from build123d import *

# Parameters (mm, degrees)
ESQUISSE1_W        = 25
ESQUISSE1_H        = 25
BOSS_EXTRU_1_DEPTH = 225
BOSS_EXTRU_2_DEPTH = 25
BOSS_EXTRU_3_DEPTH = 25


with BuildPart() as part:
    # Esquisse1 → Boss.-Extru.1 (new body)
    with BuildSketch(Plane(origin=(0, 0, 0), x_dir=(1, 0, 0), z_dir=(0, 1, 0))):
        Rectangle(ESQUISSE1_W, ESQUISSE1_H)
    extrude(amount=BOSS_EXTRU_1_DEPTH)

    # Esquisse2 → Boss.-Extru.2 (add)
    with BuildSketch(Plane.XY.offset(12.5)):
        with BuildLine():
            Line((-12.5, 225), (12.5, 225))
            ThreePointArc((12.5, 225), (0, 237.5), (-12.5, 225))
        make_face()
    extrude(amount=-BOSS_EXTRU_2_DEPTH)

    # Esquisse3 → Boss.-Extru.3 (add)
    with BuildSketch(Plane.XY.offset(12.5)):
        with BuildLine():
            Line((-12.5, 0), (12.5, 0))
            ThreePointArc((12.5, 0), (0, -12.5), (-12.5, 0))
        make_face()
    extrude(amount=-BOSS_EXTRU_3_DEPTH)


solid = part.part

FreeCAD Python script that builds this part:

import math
import FreeCAD as App
import Part
import Sketcher

doc = App.newDocument("Part")
body = doc.addObject("PartDesign::Body", "Body")

sketch1 = doc.addObject("Sketcher::SketchObject", "Sketch")
body.addObject(sketch1)
sketch1.AttachmentSupport = (doc.XZ_Plane, [""])
sketch1.MapMode = "FlatFace"
sketch1.addGeometry(Part.LineSegment(App.Vector(-12, -12, 0), App.Vector(-12, 12, 0)), False)
sketch1.addGeometry(Part.LineSegment(App.Vector(-12, 12, 0), App.Vector(12, 12, 0)), False)
sketch1.addGeometry(Part.LineSegment(App.Vector(12, 12, 0), App.Vector(12, -12, 0)), False)
sketch1.addGeometry(Part.LineSegment(App.Vector(12, -12, 0), App.Vector(-12, -12, 0)), False)
sketch1.addConstraint(Sketcher.Constraint("Coincident", 0, 2, 1, 1))
sketch1.addConstraint(Sketcher.Constraint("Coincident", 1, 2, 2, 1))
sketch1.addConstraint(Sketcher.Constraint("Coincident", 2, 2, 3, 1))
sketch1.addConstraint(Sketcher.Constraint("Coincident", 3, 2, 0, 1))
sketch1.addConstraint(Sketcher.Constraint("Vertical", 0))
sketch1.addConstraint(Sketcher.Constraint("Horizontal", 1))
sketch1.addConstraint(Sketcher.Constraint("Vertical", 2))
sketch1.addConstraint(Sketcher.Constraint("Horizontal", 3))
sketch1.addConstraint(Sketcher.Constraint("Symmetric", 0, 2, 2, 2, -1, 1))
sketch1.addConstraint(Sketcher.Constraint("Equal", 3, 0))
sketch1.addConstraint(Sketcher.Constraint("DistanceX", 1, 1, 1, 2, 25.0))
pad1 = doc.addObject("PartDesign::Pad", "Pad")
body.addObject(pad1)
pad1.Profile = sketch1
pad1.Length = 225
pad1.Reversed = True

sketch2 = doc.addObject("Sketcher::SketchObject", "Sketch001")
body.addObject(sketch2)
sketch2.AttachmentSupport = (doc.XY_Plane, [""])
sketch2.MapMode = "FlatFace"
sketch2.AttachmentOffset = App.Placement(App.Vector(0, 0, 12.5), App.Rotation())
sketch2.addGeometry(Part.LineSegment(App.Vector(-12, 225, 0), App.Vector(12, 225, 0)), False)
sketch2.addGeometry(Part.ArcOfCircle(Part.Circle(App.Vector(0, 225, 0), App.Vector(0, 0, 1), 12), math.radians(0), math.radians(180)), False)
sketch2.addConstraint(Sketcher.Constraint("Coincident", 0, 1, 1, 2))
sketch2.addConstraint(Sketcher.Constraint("Coincident", 1, 1, 0, 2))
sketch2.addConstraint(Sketcher.Constraint("Horizontal", 0))
sketch2.addConstraint(Sketcher.Constraint("PointOnObject", 1, 3, -2))
sketch2.addConstraint(Sketcher.Constraint("Horizontal", 1, 3, 0, 1))
sketch2.addConstraint(Sketcher.Constraint("Radius", 1, 12.5))
sketch2.addConstraint(Sketcher.Constraint("DistanceY", -1, 1, 1, 3, 225.0))
pad2 = doc.addObject("PartDesign::Pad", "Pad001")
body.addObject(pad2)
pad2.Profile = sketch2
pad2.Length = 25
pad2.Reversed = True

sketch3 = doc.addObject("Sketcher::SketchObject", "Sketch002")
body.addObject(sketch3)
sketch3.AttachmentSupport = (doc.XY_Plane, [""])
sketch3.MapMode = "FlatFace"
sketch3.AttachmentOffset = App.Placement(App.Vector(0, 0, 12.5), App.Rotation())
sketch3.addGeometry(Part.LineSegment(App.Vector(12, 0, 0), App.Vector(-12, 0, 0)), False)
sketch3.addGeometry(Part.ArcOfCircle(Part.Circle(App.Vector(0, 0, 0), App.Vector(0, 0, 1), 12), math.radians(180), math.radians(360)), False)
sketch3.addConstraint(Sketcher.Constraint("Coincident", 0, 1, 1, 2))
sketch3.addConstraint(Sketcher.Constraint("Coincident", 1, 1, 0, 2))
sketch3.addConstraint(Sketcher.Constraint("Horizontal", 0))
sketch3.addConstraint(Sketcher.Constraint("Coincident", 1, 3, -1, 1))
sketch3.addConstraint(Sketcher.Constraint("PointOnObject", 0, 1, -1))
sketch3.addConstraint(Sketcher.Constraint("Radius", 1, 12.5))
pad3 = doc.addObject("PartDesign::Pad", "Pad002")
body.addObject(pad3)
pad3.Profile = sketch3
pad3.Length = 25
pad3.Reversed = True

doc.recompute()
